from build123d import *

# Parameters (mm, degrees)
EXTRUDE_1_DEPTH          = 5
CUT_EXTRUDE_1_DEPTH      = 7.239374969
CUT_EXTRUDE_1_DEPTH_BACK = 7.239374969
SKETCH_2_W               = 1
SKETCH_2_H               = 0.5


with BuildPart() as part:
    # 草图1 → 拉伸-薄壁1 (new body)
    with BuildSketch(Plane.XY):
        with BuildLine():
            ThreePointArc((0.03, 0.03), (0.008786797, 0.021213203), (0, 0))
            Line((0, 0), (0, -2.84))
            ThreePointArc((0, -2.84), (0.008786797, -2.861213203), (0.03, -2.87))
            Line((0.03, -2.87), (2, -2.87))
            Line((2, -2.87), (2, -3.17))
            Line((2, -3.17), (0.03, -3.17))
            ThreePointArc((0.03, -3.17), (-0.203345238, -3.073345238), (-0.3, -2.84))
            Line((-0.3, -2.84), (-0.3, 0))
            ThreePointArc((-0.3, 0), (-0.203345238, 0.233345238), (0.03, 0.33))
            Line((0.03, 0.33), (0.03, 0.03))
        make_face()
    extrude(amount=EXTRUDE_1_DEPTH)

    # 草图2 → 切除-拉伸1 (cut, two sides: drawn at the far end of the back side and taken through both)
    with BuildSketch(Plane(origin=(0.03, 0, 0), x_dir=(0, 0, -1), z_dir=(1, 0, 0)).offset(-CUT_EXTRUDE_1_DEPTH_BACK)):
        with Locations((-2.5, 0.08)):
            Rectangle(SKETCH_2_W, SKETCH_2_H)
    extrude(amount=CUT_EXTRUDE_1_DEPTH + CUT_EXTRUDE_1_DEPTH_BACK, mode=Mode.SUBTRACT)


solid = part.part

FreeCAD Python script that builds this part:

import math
import FreeCAD as App
import Part
import Sketcher

doc = App.newDocument("Part")
body = doc.addObject("PartDesign::Body", "Body")

sketch1 = doc.addObject("Sketcher::SketchObject", "Sketch")
body.addObject(sketch1)
sketch1.AttachmentSupport = (doc.XY_Plane, [""])
sketch1.MapMode = "FlatFace"
sketch1.addGeometry([
    Part.ArcOfCircle(Part.Circle(App.Vector(0.03, 0, 0), App.Vector(0, 0, 1), 0.03), math.radians(90.000002), math.radians(179.999998)),
    Part.LineSegment(App.Vector(0.03, 0.03, 0), App.Vector(0.03, 0.33, 0)),
    Part.ArcOfCircle(Part.Circle(App.Vector(0.03, 0, 0), App.Vector(0, 0, 1), 0.33), math.radians(90), math.radians(180)),
    Part.LineSegment(App.Vector(-0.3, 0, 0), App.Vector(-0.3, -2.84, 0)),
    Part.ArcOfCircle(Part.Circle(App.Vector(0.03, -2.84, 0), App.Vector(0, 0, 1), 0.33), math.radians(180), math.radians(270)),
    Part.LineSegment(App.Vector(0.03, -3.17, 0), App.Vector(2, -3.17, 0)),
    Part.LineSegment(App.Vector(2, -3.17, 0), App.Vector(2, -2.87, 0)),
    Part.LineSegment(App.Vector(2, -2.87, 0), App.Vector(0.03, -2.87, 0)),
    Part.ArcOfCircle(Part.Circle(App.Vector(0.03, -2.84, 0), App.Vector(0, 0, 1), 0.03), math.radians(-179.999998), math.radians(-90.000002)),
    Part.LineSegment(App.Vector(0, -2.84, 0), App.Vector(0, 0, 0)),
], False)
sketch1.addConstraint([
    Sketcher.Constraint("Coincident", 0, 1, 1, 1),
    Sketcher.Constraint("Coincident", 1, 2, 2, 1),
    Sketcher.Constraint("Tangent", 2, 2, 3, 1),
    Sketcher.Constraint("Tangent", 3, 2, 4, 1),
    Sketcher.Constraint("Tangent", 4, 2, 5, 1),
    Sketcher.Constraint("Coincident", 5, 2, 6, 1),
    Sketcher.Constraint("Coincident", 6, 2, 7, 1),
    Sketcher.Constraint("Tangent", 7, 2, 8, 2),
    Sketcher.Constraint("Tangent", 8, 1, 9, 1),
    Sketcher.Constraint("Tangent", 9, 2, 0, 2),
    Sketcher.Constraint("Vertical", 1),
    Sketcher.Constraint("Vertical", 3),
    Sketcher.Constraint("Horizontal", 5),
    Sketcher.Constraint("Vertical", 6),
    Sketcher.Constraint("Horizontal", 7),
    Sketcher.Constraint("Vertical", 9),
    Sketcher.Constraint("Coincident", 9, 2, -1, 1),
    Sketcher.Constraint("Coincident", 2, 3, 0, 3),
    Sketcher.Constraint("Coincident", 8, 3, 4, 3),
    Sketcher.Constraint("Equal", 2, 4),
    Sketcher.Constraint("Vertical", 8, 3, 0, 1),
    Sketcher.Constraint("Radius", 0, 0.03),
    Sketcher.Constraint("Radius", 2, 0.33),
    Sketcher.Constraint("DistanceX", -1, 1, 5, 2, 2.0),
    Sketcher.Constraint("DistanceY", 3, 2, 3, 1, 2.84),
])
pad1 = doc.addObject("PartDesign::Pad", "Pad")
body.addObject(pad1)
pad1.Profile = sketch1
pad1.Length = 5

sketch2 = doc.addObject("Sketcher::SketchObject", "Sketch001")
body.addObject(sketch2)
sketch2.AttachmentSupport = (doc.YZ_Plane, [""])
sketch2.MapMode = "FlatFace"
sketch2.AttachmentOffset = App.Placement(App.Vector(0, 0, 0.03), App.Rotation())
sketch2.addGeometry([
    Part.LineSegment(App.Vector(0.33, 3, 0), App.Vector(-0.17, 3, 0)),
    Part.LineSegment(App.Vector(-0.17, 3, 0), App.Vector(-0.17, 2, 0)),
    Part.LineSegment(App.Vector(-0.17, 2, 0), App.Vector(0.33, 2, 0)),
    Part.LineSegment(App.Vector(0.33, 2, 0), App.Vector(0.33, 3, 0)),
], False)
sketch2.addConstraint([
    Sketcher.Constraint("Coincident", 0, 2, 1, 1),
    Sketcher.Constraint("Coincident", 1, 2, 2, 1),
    Sketcher.Constraint("Coincident", 2, 2, 3, 1),
    Sketcher.Constraint("Coincident", 3, 2, 0, 1),
    Sketcher.Constraint("Horizontal", 0),
    Sketcher.Constraint("Vertical", 1),
    Sketcher.Constraint("Horizontal", 2),
    Sketcher.Constraint("Vertical", 3),
    Sketcher.Constraint("DistanceY", 1, 2, 1, 1, 1.0),
    Sketcher.Constraint("DistanceX", 0, 2, 0, 1, 0.5),
    Sketcher.Constraint("DistanceY", -1, 1, 0, 2, 3.0),
    Sketcher.Constraint("DistanceX", 0, 2, -1, 1, 0.17),
])
pocket1 = doc.addObject("PartDesign::Pocket", "Pocket")
body.addObject(pocket1)
pocket1.Profile = sketch2
pocket1.Type = "ThroughAll"
pocket1.Midplane = True

doc.recompute()
